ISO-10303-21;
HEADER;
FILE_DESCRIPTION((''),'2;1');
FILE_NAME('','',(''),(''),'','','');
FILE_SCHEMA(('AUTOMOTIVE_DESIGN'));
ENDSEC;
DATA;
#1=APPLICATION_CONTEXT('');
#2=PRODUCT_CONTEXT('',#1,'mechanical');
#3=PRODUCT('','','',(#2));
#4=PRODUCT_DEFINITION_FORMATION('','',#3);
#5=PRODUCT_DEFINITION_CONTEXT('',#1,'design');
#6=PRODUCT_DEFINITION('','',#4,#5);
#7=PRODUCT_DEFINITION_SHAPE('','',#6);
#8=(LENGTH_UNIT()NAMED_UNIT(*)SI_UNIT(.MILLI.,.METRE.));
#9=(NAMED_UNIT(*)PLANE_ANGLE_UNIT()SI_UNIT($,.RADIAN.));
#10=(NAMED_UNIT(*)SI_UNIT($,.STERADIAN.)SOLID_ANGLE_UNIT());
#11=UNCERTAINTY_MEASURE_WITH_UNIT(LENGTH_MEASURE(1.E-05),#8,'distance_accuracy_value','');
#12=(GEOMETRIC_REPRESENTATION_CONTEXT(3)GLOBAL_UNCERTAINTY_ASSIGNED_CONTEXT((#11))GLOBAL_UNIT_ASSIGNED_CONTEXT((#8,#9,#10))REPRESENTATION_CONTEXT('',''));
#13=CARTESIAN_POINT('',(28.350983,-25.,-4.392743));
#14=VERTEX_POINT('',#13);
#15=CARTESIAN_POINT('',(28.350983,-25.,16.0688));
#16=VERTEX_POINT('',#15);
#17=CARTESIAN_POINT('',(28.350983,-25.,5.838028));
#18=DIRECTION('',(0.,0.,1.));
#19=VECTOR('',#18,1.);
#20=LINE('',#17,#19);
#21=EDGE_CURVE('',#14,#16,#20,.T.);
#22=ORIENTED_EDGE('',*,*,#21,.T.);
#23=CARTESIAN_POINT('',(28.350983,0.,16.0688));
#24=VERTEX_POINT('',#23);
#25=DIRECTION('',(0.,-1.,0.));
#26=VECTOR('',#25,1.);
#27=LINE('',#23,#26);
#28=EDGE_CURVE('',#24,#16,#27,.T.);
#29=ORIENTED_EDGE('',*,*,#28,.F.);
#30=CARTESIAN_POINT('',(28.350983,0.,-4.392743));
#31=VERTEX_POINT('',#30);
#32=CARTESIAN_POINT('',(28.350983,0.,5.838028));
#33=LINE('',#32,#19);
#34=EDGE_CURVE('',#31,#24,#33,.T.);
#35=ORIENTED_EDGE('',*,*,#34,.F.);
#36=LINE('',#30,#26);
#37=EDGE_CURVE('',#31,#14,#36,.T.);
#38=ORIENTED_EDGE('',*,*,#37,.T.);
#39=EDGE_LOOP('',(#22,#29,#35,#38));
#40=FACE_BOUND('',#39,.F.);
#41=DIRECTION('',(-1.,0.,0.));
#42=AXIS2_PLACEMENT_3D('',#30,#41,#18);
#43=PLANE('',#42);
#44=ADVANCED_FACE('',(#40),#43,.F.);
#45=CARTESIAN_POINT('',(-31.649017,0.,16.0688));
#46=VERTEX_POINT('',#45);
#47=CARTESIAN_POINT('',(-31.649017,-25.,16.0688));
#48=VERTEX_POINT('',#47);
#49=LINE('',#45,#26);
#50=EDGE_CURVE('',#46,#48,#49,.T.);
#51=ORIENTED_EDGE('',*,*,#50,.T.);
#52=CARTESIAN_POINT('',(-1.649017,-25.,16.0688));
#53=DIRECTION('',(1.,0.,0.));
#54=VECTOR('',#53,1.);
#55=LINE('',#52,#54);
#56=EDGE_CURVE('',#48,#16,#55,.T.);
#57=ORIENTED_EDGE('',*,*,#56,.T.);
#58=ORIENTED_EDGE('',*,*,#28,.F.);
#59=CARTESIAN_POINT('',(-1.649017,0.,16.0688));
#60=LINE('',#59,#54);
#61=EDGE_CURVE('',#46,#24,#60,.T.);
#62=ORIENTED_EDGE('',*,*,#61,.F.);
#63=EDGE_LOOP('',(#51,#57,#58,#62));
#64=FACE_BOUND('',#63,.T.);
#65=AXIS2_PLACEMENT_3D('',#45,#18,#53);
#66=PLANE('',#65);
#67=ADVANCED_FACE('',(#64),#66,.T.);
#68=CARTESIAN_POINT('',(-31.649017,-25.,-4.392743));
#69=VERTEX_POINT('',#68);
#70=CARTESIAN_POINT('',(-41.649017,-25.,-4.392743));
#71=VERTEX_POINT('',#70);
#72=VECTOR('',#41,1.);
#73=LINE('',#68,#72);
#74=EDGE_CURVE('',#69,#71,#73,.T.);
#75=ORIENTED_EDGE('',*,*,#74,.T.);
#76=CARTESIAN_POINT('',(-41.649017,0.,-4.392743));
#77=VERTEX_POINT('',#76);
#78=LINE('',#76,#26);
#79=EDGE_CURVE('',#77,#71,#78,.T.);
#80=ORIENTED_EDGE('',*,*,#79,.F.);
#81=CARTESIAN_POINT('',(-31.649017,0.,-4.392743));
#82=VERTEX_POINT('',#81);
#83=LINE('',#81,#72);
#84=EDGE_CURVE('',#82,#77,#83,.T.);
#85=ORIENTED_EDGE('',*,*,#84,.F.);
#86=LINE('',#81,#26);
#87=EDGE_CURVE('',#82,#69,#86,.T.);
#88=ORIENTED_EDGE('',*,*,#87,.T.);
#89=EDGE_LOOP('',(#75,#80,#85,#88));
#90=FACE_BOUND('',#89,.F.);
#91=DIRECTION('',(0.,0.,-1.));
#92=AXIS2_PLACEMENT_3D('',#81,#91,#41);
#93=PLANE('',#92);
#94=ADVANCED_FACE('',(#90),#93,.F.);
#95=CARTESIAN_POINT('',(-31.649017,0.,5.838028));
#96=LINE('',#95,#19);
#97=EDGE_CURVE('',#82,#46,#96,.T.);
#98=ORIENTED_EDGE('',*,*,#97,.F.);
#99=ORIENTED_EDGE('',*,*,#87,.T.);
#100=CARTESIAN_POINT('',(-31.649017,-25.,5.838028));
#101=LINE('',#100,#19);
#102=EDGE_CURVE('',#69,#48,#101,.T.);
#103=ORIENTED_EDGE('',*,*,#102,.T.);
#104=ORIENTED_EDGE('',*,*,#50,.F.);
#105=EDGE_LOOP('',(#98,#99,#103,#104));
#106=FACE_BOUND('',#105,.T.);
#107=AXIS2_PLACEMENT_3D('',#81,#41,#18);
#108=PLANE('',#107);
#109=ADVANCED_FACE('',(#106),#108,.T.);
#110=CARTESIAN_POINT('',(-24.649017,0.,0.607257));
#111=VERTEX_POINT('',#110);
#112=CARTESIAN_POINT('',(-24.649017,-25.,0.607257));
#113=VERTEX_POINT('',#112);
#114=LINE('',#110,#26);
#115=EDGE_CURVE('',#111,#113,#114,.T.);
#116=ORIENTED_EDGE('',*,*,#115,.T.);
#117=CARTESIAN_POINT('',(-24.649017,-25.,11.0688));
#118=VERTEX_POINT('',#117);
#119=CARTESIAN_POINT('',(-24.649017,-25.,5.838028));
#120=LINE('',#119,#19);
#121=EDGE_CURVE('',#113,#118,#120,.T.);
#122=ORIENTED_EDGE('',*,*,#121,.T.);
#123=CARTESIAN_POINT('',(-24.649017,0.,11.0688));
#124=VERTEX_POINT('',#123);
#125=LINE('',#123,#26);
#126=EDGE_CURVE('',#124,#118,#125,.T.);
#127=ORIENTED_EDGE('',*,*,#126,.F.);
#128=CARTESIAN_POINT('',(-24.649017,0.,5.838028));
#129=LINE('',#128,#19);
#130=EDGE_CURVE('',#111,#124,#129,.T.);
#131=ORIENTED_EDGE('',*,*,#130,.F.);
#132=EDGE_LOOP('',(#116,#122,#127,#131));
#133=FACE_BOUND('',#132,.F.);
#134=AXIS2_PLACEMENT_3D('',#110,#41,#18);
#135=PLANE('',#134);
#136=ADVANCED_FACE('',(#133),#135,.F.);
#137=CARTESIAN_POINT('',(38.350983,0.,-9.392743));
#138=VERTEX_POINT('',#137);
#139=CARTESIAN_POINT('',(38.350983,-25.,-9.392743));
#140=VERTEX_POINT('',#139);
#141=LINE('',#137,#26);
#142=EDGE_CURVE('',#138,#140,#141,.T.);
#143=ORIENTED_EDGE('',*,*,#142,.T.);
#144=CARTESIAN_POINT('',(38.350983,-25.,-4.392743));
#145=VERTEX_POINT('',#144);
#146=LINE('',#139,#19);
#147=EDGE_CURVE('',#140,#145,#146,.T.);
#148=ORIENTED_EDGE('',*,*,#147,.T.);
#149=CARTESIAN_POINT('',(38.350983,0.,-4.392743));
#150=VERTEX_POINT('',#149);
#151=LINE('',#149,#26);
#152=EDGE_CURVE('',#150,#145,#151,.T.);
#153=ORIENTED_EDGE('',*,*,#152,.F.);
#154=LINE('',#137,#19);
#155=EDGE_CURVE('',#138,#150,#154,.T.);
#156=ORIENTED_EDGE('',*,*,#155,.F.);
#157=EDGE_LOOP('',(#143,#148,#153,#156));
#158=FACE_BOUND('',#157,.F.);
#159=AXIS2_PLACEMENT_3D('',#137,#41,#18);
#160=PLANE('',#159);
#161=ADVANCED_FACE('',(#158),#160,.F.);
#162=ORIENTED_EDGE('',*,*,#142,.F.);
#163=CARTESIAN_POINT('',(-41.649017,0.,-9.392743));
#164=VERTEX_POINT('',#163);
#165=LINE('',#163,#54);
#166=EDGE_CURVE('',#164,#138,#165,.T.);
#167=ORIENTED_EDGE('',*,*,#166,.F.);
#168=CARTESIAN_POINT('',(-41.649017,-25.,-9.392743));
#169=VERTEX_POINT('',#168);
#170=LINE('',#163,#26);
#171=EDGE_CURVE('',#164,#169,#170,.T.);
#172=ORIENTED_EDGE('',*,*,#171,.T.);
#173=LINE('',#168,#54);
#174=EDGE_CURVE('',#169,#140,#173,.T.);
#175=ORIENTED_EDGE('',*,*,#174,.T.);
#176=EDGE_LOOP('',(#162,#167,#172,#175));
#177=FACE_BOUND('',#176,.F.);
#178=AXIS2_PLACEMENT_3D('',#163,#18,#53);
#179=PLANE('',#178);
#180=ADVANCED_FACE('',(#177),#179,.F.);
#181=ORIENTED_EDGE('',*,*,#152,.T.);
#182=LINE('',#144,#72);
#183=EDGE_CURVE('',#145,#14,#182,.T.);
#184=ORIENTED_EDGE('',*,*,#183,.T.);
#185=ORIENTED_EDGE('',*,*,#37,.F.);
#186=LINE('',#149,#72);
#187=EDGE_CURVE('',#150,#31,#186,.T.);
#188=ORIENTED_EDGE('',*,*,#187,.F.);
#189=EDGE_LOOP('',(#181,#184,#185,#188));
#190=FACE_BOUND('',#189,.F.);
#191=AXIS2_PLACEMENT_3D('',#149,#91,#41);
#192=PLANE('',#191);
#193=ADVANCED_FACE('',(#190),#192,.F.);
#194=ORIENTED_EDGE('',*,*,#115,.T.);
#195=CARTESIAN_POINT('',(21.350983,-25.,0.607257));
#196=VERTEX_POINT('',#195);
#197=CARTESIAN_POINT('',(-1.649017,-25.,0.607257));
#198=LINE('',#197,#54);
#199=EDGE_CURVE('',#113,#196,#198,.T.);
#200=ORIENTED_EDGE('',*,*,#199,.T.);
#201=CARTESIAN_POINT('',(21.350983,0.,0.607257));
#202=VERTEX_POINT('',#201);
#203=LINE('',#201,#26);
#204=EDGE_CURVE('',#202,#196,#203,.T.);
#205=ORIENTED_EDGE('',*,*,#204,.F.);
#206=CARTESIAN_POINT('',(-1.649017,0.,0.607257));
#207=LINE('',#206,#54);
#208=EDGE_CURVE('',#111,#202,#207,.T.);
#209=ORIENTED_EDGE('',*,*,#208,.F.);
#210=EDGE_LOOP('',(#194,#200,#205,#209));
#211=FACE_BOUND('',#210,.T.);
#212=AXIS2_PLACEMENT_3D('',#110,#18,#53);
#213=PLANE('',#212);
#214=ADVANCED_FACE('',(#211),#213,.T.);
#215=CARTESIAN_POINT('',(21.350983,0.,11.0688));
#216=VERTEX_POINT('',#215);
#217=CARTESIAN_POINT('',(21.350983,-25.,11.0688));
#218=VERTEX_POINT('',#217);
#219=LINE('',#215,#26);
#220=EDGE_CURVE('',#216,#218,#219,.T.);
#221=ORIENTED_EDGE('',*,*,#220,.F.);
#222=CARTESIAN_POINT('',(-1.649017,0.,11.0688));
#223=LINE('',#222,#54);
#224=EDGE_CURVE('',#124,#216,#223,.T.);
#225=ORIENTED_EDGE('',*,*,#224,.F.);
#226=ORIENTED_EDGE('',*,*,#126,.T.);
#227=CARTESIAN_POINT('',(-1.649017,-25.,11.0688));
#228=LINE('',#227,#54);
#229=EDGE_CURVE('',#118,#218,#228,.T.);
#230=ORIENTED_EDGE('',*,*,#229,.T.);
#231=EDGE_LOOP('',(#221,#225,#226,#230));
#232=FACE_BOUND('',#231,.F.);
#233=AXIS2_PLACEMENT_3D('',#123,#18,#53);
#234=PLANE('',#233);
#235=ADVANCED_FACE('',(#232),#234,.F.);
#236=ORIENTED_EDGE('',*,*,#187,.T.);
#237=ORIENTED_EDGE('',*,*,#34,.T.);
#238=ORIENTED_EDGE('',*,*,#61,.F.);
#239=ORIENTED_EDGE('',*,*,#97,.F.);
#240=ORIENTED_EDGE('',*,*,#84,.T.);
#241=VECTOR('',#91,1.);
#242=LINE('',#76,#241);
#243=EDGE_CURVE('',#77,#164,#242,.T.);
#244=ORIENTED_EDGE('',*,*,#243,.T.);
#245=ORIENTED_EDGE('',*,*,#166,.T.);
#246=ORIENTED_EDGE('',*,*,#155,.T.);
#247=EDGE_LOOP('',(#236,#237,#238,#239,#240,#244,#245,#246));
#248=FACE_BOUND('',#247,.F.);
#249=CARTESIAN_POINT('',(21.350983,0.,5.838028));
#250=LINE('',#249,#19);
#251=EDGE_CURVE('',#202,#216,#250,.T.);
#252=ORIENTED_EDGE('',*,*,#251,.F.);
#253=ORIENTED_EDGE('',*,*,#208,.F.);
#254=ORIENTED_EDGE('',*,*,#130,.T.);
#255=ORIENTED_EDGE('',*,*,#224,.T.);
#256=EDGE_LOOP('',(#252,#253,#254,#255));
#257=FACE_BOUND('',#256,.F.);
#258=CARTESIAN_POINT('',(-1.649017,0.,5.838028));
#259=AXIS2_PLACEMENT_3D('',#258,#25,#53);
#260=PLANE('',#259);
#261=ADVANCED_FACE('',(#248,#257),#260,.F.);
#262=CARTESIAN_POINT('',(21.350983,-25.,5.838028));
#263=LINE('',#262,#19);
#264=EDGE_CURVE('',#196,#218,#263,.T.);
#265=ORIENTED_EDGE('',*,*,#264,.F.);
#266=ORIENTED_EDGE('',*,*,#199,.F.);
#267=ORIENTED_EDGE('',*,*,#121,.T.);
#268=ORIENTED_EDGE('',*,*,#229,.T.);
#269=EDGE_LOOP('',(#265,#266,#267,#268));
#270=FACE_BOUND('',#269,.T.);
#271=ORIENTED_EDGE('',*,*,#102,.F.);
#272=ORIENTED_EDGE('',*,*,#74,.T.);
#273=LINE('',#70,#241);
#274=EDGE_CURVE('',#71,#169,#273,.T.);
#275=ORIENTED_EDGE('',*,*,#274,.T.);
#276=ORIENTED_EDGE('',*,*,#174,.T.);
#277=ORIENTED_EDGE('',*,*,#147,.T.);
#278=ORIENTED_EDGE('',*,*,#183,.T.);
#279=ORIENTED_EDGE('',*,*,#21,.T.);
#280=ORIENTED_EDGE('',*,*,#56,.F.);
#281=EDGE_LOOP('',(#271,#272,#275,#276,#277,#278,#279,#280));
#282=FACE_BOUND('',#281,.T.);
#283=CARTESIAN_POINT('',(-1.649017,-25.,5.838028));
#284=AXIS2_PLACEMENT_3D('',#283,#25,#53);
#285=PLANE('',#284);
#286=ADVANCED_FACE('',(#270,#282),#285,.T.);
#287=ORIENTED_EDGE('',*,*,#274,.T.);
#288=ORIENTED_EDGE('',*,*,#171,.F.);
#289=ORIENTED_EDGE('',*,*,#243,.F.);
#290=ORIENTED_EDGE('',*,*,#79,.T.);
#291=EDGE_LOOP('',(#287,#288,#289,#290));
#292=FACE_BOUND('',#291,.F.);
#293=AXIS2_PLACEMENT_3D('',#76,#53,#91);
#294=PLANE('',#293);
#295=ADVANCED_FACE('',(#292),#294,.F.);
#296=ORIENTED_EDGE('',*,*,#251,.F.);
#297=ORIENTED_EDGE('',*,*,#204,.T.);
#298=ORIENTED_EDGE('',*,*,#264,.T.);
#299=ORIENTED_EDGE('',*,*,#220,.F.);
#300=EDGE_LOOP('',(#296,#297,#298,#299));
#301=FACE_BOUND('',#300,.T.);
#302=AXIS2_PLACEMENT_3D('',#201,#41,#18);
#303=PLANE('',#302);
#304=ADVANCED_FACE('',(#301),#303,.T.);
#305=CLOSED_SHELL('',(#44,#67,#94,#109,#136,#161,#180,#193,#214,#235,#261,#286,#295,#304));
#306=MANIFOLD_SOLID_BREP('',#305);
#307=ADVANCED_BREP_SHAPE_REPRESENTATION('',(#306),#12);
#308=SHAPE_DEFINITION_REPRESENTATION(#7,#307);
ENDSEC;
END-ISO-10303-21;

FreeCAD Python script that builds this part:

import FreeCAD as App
import Part
import Sketcher

V = App.Vector

doc = App.newDocument("Part")
body = doc.addObject("PartDesign::Body", "Body")

# Sketch on XZ plane
sketch1 = doc.addObject("Sketcher::SketchObject", "Sketch")
body.addObject(sketch1)
sketch1.AttachmentSupport = (doc.XZ_Plane, [""])
sketch1.MapMode = "FlatFace"
sketch1.addGeometry(Part.LineSegment(V(-32, 16, 0), V(-32, -4, 0)), False)
sketch1.addGeometry(Part.LineSegment(V(-32, -4, 0), V(-42, -4, 0)), False)
sketch1.addGeometry(Part.LineSegment(V(-42, -4, 0), V(-42, -9, 0)), False)
sketch1.addGeometry(Part.LineSegment(V(-42, -9, 0), V(38, -9, 0)), False)
sketch1.addGeometry(Part.LineSegment(V(38, -9, 0), V(38, -4, 0)), False)
sketch1.addGeometry(Part.LineSegment(V(38, -4, 0), V(28, -4, 0)), False)
sketch1.addGeometry(Part.LineSegment(V(28, -4, 0), V(28, 16, 0)), False)
sketch1.addGeometry(Part.LineSegment(V(28, 16, 0), V(-32, 16, 0)), False)
sketch1.addGeometry(Part.LineSegment(V(21, 1, 0), V(-25, 1, 0)), False)
sketch1.addGeometry(Part.LineSegment(V(-25, 1, 0), V(-25, 11, 0)), False)
sketch1.addGeometry(Part.LineSegment(V(-25, 11, 0), V(21, 11, 0)), False)
sketch1.addGeometry(Part.LineSegment(V(21, 11, 0), V(21, 1, 0)), False)
sketch1.addConstraint(Sketcher.Constraint("Coincident", 0, 2, 1, 1))
sketch1.addConstraint(Sketcher.Constraint("Coincident", 1, 2, 2, 1))
sketch1.addConstraint(Sketcher.Constraint("Coincident", 2, 2, 3, 1))
sketch1.addConstraint(Sketcher.Constraint("Coincident", 3, 2, 4, 1))
sketch1.addConstraint(Sketcher.Constraint("Coincident", 4, 2, 5, 1))
sketch1.addConstraint(Sketcher.Constraint("Coincident", 5, 2, 6, 1))
sketch1.addConstraint(Sketcher.Constraint("Coincident", 6, 2, 7, 1))
sketch1.addConstraint(Sketcher.Constraint("Coincident", 7, 2, 0, 1))
sketch1.addConstraint(Sketcher.Constraint("Coincident", 8, 2, 9, 1))
sketch1.addConstraint(Sketcher.Constraint("Coincident", 9, 2, 10, 1))
sketch1.addConstraint(Sketcher.Constraint("Coincident", 10, 2, 11, 1))
sketch1.addConstraint(Sketcher.Constraint("Coincident", 11, 2, 8, 1))
sketch1.addConstraint(Sketcher.Constraint("Vertical", 0))
sketch1.addConstraint(Sketcher.Constraint("Horizontal", 1))
sketch1.addConstraint(Sketcher.Constraint("Vertical", 2))
sketch1.addConstraint(Sketcher.Constraint("Horizontal", 3))
sketch1.addConstraint(Sketcher.Constraint("Vertical", 4))
sketch1.addConstraint(Sketcher.Constraint("Horizontal", 5))
sketch1.addConstraint(Sketcher.Constraint("Vertical", 6))
sketch1.addConstraint(Sketcher.Constraint("Horizontal", 7))
sketch1.addConstraint(Sketcher.Constraint("Horizontal", 8))
sketch1.addConstraint(Sketcher.Constraint("Vertical", 9))
sketch1.addConstraint(Sketcher.Constraint("Horizontal", 10))
sketch1.addConstraint(Sketcher.Constraint("Vertical", 11))
sketch1.addConstraint(Sketcher.Constraint("Horizontal", 1, 2, 4, 2))
sketch1.addConstraint(Sketcher.Constraint("Equal", 1, 5))
sketch1.addConstraint(Sketcher.Constraint("DistanceX", 1, 2, 1, 1, 10.0))
sketch1.addConstraint(Sketcher.Constraint("DistanceX", 3, 1, 3, 2, 80.0))
sketch1.addConstraint(Sketcher.Constraint("DistanceX", 8, 2, 8, 1, 46.0))
sketch1.addConstraint(Sketcher.Constraint("DistanceY", 2, 2, 2, 1, 5.0))
sketch1.addConstraint(Sketcher.Constraint("DistanceX", 0, 2, 8, 2, 7.0))
sketch1.addConstraint(Sketcher.Constraint("DistanceY", 0, 2, 8, 2, 5.0))
sketch1.addConstraint(Sketcher.Constraint("DistanceY", 9, 2, 7, 2, 5.0))
sketch1.addConstraint(Sketcher.Constraint("DistanceY", -1, 1, 6, 2, 16.0688))
sketch1.addConstraint(Sketcher.Constraint("DistanceY", 0, 2, 0, 1, 20.461542))
sketch1.addConstraint(Sketcher.Constraint("DistanceX", 0, 2, -1, 1, 31.649017))
pad1 = doc.addObject("PartDesign::Pad", "Pad")
body.addObject(pad1)
pad1.Profile = sketch1
pad1.Length = 25

doc.recompute()
